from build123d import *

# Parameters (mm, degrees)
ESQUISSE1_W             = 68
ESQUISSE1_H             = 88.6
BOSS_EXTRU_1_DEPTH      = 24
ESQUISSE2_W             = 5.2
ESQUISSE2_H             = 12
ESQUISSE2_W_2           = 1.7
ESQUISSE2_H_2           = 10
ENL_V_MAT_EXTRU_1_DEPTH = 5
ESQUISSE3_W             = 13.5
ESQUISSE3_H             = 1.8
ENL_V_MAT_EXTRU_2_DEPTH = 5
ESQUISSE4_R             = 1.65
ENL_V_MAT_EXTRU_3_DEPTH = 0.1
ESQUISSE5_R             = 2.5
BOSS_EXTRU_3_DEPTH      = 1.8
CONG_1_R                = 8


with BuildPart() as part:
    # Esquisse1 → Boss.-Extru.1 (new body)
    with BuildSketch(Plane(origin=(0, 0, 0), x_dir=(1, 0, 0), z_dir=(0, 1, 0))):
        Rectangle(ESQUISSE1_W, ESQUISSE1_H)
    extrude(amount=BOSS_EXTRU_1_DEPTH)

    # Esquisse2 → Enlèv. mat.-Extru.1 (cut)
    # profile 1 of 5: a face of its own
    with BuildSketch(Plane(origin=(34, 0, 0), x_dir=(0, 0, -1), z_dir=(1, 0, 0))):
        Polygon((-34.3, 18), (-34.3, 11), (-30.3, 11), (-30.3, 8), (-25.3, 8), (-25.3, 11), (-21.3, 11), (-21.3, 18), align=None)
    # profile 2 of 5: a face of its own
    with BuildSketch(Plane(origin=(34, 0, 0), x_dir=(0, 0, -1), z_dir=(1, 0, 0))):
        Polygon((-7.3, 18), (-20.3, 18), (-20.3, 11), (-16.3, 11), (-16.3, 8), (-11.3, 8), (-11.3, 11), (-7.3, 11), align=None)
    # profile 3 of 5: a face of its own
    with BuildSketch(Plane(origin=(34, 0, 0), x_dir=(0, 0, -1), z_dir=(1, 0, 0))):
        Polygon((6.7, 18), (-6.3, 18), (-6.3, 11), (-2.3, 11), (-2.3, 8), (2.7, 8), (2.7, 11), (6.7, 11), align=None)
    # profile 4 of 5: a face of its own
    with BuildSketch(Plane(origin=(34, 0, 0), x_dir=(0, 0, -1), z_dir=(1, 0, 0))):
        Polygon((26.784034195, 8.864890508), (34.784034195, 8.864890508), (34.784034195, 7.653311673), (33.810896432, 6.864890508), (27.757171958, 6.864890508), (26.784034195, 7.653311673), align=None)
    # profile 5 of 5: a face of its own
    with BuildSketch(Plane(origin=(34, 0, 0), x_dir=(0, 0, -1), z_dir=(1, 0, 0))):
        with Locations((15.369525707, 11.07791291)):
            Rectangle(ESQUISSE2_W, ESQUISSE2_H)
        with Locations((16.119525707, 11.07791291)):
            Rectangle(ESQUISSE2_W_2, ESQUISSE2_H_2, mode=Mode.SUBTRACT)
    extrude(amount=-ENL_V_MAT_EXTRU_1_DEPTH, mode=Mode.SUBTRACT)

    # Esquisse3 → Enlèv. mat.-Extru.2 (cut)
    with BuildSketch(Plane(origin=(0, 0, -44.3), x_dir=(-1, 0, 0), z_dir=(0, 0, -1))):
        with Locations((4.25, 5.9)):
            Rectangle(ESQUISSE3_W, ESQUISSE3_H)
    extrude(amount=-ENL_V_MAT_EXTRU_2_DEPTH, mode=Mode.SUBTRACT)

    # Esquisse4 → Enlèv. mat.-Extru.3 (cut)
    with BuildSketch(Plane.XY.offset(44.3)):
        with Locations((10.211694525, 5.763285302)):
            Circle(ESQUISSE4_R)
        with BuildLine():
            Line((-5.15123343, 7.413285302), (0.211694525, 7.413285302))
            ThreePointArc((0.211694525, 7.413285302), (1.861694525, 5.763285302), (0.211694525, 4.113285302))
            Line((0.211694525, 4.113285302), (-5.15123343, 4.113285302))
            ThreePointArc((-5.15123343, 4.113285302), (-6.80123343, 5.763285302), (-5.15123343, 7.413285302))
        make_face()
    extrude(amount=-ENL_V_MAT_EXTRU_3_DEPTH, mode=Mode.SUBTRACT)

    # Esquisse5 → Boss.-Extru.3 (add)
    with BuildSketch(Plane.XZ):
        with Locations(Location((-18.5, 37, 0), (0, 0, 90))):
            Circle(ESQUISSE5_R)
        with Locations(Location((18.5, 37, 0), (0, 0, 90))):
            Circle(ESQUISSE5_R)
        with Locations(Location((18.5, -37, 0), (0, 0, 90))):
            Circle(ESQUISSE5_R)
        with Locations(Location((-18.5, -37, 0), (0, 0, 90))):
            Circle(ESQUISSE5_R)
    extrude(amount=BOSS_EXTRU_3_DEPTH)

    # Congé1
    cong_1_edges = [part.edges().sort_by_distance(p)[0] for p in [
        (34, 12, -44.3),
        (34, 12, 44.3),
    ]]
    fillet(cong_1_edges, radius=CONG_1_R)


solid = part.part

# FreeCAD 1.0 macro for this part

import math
import FreeCAD as App
import Part
import Sketcher
from FreeCAD import Vector


def edges_at(feature, points):
    """Names of the edges that pass closest to the given points."""
    edges = feature.Shape.Edges
    near = lambda p: min(range(len(edges)), key=lambda i: edges[i].distToShape(Part.Vertex(*p))[0])
    return sorted({f"Edge{near(p) + 1}" for p in points})


def add_polygon(sketch, points):
    """Adds a closed chain of lines whose ends are joined by coincident constraints."""
    first, n = sketch.GeometryCount, len(points)
    for a, b in zip(points, points[1:] + points[:1]):
        sketch.addGeometry(Part.LineSegment(App.Vector(*a, 0), App.Vector(*b, 0)), False)
    for i in range(n):
        sketch.addConstraint(Sketcher.Constraint("Coincident", first + i, 2, first + (i + 1) % n, 1))

doc = App.newDocument("Part")
params = doc.addObject("Spreadsheet::Sheet", "Params")
for row, (alias, value) in enumerate([
    ("sketch1_width", "68 mm"),
    ("sketch1_height", "88.6 mm"),
    ("pad1_length", "24 mm"),
    ("sketch2_width", "7 mm"),
    ("sketch2_width2", "3 mm"),
    ("sketch2_width3", "12 mm"),
    ("sketch2_width4", "10 mm"),
    ("sketch2_height", "4 mm"),
    ("pocket1_length", "5 mm"),
    ("sketch3_width", "13.5 mm"),
    ("sketch3_height", "1.8 mm"),
    ("pocket2_length", "5 mm"),
    ("sketch4_diameter", "3.3 mm"),
    ("pocket3_length", "0.1 mm"),
    ("sketch5_diameter", "5 mm"),
    ("pad2_length", "1.8 mm"),
    ("fillet_radius", "8 mm"),
], start=1):
    params.set(f"A{row}", alias)
    params.set(f"B{row}", "=" + value)
    params.setAlias(f"B{row}", alias)

body = doc.addObject("PartDesign::Body", "Body")

# Sketch on XZ plane
sketch1 = body.newObject("Sketcher::SketchObject", "Sketch")
sketch1.AttachmentSupport = (doc.getObject("XZ_Plane"), [""])
sketch1.MapMode = "FlatFace"
add_polygon(sketch1, [(-34, -44.3), (-34, 44.3), (34, 44.3), (34, -44.3)])  # lines 0-3
sketch1.addConstraint([
    Sketcher.Constraint("Vertical", 0),
    Sketcher.Constraint("Horizontal", 1),
    Sketcher.Constraint("Vertical", 2),
    Sketcher.Constraint("Horizontal", 3),
    Sketcher.Constraint("Symmetric", 0, 2, 2, 2, -1, 1),
    Sketcher.Constraint("DistanceX", 1, 1, 1, 2, 68.0),
    Sketcher.Constraint("DistanceY", 0, 1, 0, 2, 88.6),
])
sketch1.setExpression("Constraints[9]", "Params.sketch1_width")
sketch1.setExpression("Constraints[10]", "Params.sketch1_height")
pad1 = body.newObject("PartDesign::Pad", "Pad")
pad1.Profile = sketch1
pad1.setExpression("Length", "Params.pad1_length")
pad1.Reversed = True

# Sketch on YZ plane
sketch2 = body.newObject("Sketcher::SketchObject", "Sketch001")
sketch2.AttachmentSupport = (doc.getObject("YZ_Plane"), [""])
sketch2.MapMode = "FlatFace"
sketch2.AttachmentOffset = App.Placement(Vector(0, 0, 34), App.Rotation())
add_polygon(sketch2, [(18, 34.3), (11, 34.3), (11, 30.3), (8, 30.3), (8, 25.3), (11, 25.3), (11, 21.3), (18, 21.3)])  # lines 0-7
add_polygon(sketch2, [(18, 7.3), (18, 20.3), (11, 20.3), (11, 16.3), (8, 16.3), (8, 11.3), (11, 11.3), (11, 7.3)])  # lines 8-15
add_polygon(sketch2, [(18, -6.7), (18, 6.3), (11, 6.3), (11, 2.3), (8, 2.3), (8, -2.7), (11, -2.7), (11, -6.7)])  # lines 16-23
add_polygon(sketch2, [(8.864891, -34.784034), (8.864891, -26.784034), (7.653312, -26.784034), (6.864891, -27.757172), (6.864891, -33.810896), (7.653312, -34.784034)])  # lines 24-29
add_polygon(sketch2, [(17.077913, -12.769526), (5.077913, -12.769526), (5.077913, -17.969526), (17.077913, -17.969526)])  # lines 30-33
add_polygon(sketch2, [(6.077913, -16.969526), (6.077913, -15.269526), (16.077913, -15.269526), (16.077913, -16.969526)])  # lines 34-37
sketch2.addConstraint([
    Sketcher.Constraint("Horizontal", 0),
    Sketcher.Constraint("Vertical", 1),
    Sketcher.Constraint("Horizontal", 2),
    Sketcher.Constraint("Vertical", 3),
    Sketcher.Constraint("Horizontal", 4),
    Sketcher.Constraint("Vertical", 5),
    Sketcher.Constraint("Horizontal", 6),
    Sketcher.Constraint("Vertical", 7),
    Sketcher.Constraint("Vertical", 8),
    Sketcher.Constraint("Horizontal", 9),
    Sketcher.Constraint("Vertical", 10),
    Sketcher.Constraint("Horizontal", 11),
    Sketcher.Constraint("Vertical", 12),
    Sketcher.Constraint("Horizontal", 13),
    Sketcher.Constraint("Vertical", 14),
    Sketcher.Constraint("Horizontal", 15),
    Sketcher.Constraint("Vertical", 16),
    Sketcher.Constraint("Horizontal", 17),
    Sketcher.Constraint("Vertical", 18),
    Sketcher.Constraint("Horizontal", 19),
    Sketcher.Constraint("Vertical", 20),
    Sketcher.Constraint("Horizontal", 21),
    Sketcher.Constraint("Vertical", 22),
    Sketcher.Constraint("Horizontal", 23),
    Sketcher.Constraint("Vertical", 24),
    Sketcher.Constraint("Horizontal", 25),
    Sketcher.Constraint("Vertical", 27),
    Sketcher.Constraint("Horizontal", 29),
    Sketcher.Constraint("Horizontal", 30),
    Sketcher.Constraint("Vertical", 31),
    Sketcher.Constraint("Horizontal", 32),
    Sketcher.Constraint("Vertical", 33),
    Sketcher.Constraint("Vertical", 34),
    Sketcher.Constraint("Horizontal", 35),
    Sketcher.Constraint("Vertical", 36),
    Sketcher.Constraint("Horizontal", 37),
    Sketcher.Constraint("Vertical", 1, 2, 4, 2),
    Sketcher.Constraint("Vertical", 7, 2, 8, 2),
    Sketcher.Constraint("Vertical", 5, 2, 9, 2),
    Sketcher.Constraint("Vertical", 3, 2, 11, 2),
    Sketcher.Constraint("Vertical", 10, 2, 13, 2),
    Sketcher.Constraint("Vertical", 15, 2, 16, 2),
    Sketcher.Constraint("Vertical", 14, 2, 17, 2),
    Sketcher.Constraint("Vertical", 12, 2, 19, 2),
    Sketcher.Constraint("Vertical", 18, 2, 21, 2),
    Sketcher.Constraint("Vertical", 25, 2, 28, 2),
    Sketcher.Constraint("Equal", 1, 5),
    Sketcher.Constraint("Equal", 7, 8),
    Sketcher.Constraint("Equal", 5, 10),
    Sketcher.Constraint("Equal", 3, 12),
    Sketcher.Constraint("Equal", 8, 16),
    Sketcher.Constraint("Equal", 14, 18),
    Sketcher.Constraint("Equal", 12, 20),
    Sketcher.Constraint("Equal", 26, 28),
    Sketcher.Constraint("DistanceX", 0, 2, 0, 1, 7.0),
    Sketcher.Constraint("DistanceX", 2, 2, 2, 1, 3.0),
    Sketcher.Constraint("DistanceX", 30, 2, 30, 1, 12.0),
    Sketcher.Constraint("DistanceX", 35, 1, 35, 2, 10.0),
    Sketcher.Constraint("DistanceY", 1, 2, 1, 1, 4.0),
    Sketcher.Constraint("DistanceY", 3, 2, 3, 1, 5.0),
    Sketcher.Constraint("DistanceY", 24, 1, 24, 2, 8.0),
    Sketcher.Constraint("DistanceY", 31, 2, 31, 1, 5.2),
    Sketcher.Constraint("DistanceY", 34, 1, 34, 2, 1.7),
    Sketcher.Constraint("DistanceX", -1, 1, 0, 2, 11.0),
    Sketcher.Constraint("DistanceY", 8, 2, 6, 2, 1.0),
    Sketcher.Constraint("DistanceY", 16, 2, 15, 2, 1.0),
    Sketcher.Constraint("DistanceX", 26, 2, 24, 2, 2.0),
    Sketcher.Constraint("DistanceX", 30, 2, 34, 2, 1.0),
    Sketcher.Constraint("DistanceY", 32, 2, 36, 2, 1.0),
    Sketcher.Constraint("DistanceY", -1, 1, 0, 2, 34.3),
    Sketcher.Constraint("DistanceX", 25, 2, 25, 1, 1.211579),
    Sketcher.Constraint("DistanceX", 30, 2, 25, 2, 2.575399),
    Sketcher.Constraint("Distance", 26, 1.25244),
    Sketcher.Constraint("DistanceX", -1, 1, 24, 2, 8.864891),
    Sketcher.Constraint("DistanceY", 26, 2, -1, 1, 27.757172),
    Sketcher.Constraint("DistanceY", 25, 2, 30, 2, 14.014508),
])
sketch2.setExpression("Constraints[92]", "Params.sketch2_width")
sketch2.setExpression("Constraints[93]", "Params.sketch2_width2")
sketch2.setExpression("Constraints[94]", "Params.sketch2_width3")
sketch2.setExpression("Constraints[95]", "Params.sketch2_width4")
sketch2.setExpression("Constraints[96]", "Params.sketch2_height")
pocket1 = body.newObject("PartDesign::Pocket", "Pocket")
pocket1.Profile = sketch2
pocket1.setExpression("Length", "Params.pocket1_length")

# Sketch on XY plane
sketch3 = body.newObject("Sketcher::SketchObject", "Sketch002")
sketch3.AttachmentSupport = (doc.getObject("XY_Plane"), [""])
sketch3.MapMode = "FlatFace"
sketch3.AttachmentOffset = App.Placement(Vector(0, 0, -44.3), App.Rotation())
add_polygon(sketch3, [(2.5, 6.8), (2.5, 5), (-11, 5), (-11, 6.8)])  # lines 0-3
sketch3.addConstraint([
    Sketcher.Constraint("Vertical", 0),
    Sketcher.Constraint("Horizontal", 1),
    Sketcher.Constraint("Vertical", 2),
    Sketcher.Constraint("Horizontal", 3),
    Sketcher.Constraint("DistanceX", 1, 2, 1, 1, 13.5),
    Sketcher.Constraint("DistanceY", 0, 2, 0, 1, 1.8),
    Sketcher.Constraint("DistanceY", -1, 1, 0, 2, 5.0),
    Sketcher.Constraint("DistanceX", 1, 2, -1, 1, 11.0),
])
sketch3.setExpression("Constraints[8]", "Params.sketch3_width")
sketch3.setExpression("Constraints[9]", "Params.sketch3_height")
pocket2 = body.newObject("PartDesign::Pocket", "Pocket001")
pocket2.Profile = sketch3
pocket2.setExpression("Length", "Params.pocket2_length")
pocket2.Reversed = True

# Sketch on XY plane
sketch4 = body.newObject("Sketcher::SketchObject", "Sketch003")
sketch4.AttachmentSupport = (doc.getObject("XY_Plane"), [""])
sketch4.MapMode = "FlatFace"
sketch4.AttachmentOffset = App.Placement(Vector(0, 0, 44.3), App.Rotation())
sketch4.addGeometry([
    Part.Circle(Vector(10.211695, 5.763285, 0), Vector(0, 0, 1), 1.65),  # 0
    Part.LineSegment(Vector(0.211695, 7.413285, 0), Vector(-5.151233, 7.413285, 0)),  # 1
    Part.ArcOfCircle(Part.Circle(Vector(-5.151233, 5.763285, 0), Vector(0, 0, 1), 1.65), math.radians(90), math.radians(270)),  # 2
    Part.LineSegment(Vector(-5.151233, 4.113285, 0), Vector(0.211695, 4.113285, 0)),  # 3
    Part.ArcOfCircle(Part.Circle(Vector(0.211695, 5.763285, 0), Vector(0, 0, 1), 1.65), math.radians(-90), math.radians(90)),  # 4
], False)
sketch4.addConstraint([
    Sketcher.Constraint("Tangent", 1, 2, 2, 1),
    Sketcher.Constraint("Tangent", 2, 2, 3, 1),
    Sketcher.Constraint("Tangent", 3, 2, 4, 1),
    Sketcher.Constraint("Tangent", 4, 2, 1, 1),
    Sketcher.Constraint("Horizontal", 1),
    Sketcher.Constraint("Horizontal", 3),
    Sketcher.Constraint("Equal", 0, 2),
    Sketcher.Constraint("Horizontal", 0, 3, 2, 3),
    Sketcher.Constraint("Diameter", 0, 3.3),
    Sketcher.Constraint("DistanceX", 4, 3, 0, 3, 10.0),
    Sketcher.Constraint("DistanceX", 1, 2, 1, 1, 5.362928),
    Sketcher.Constraint("DistanceX", -1, 1, 0, 3, 10.211695),
    Sketcher.Constraint("DistanceY", -1, 1, 0, 3, 5.763285),
])
sketch4.setExpression("Constraints[8]", "Params.sketch4_diameter")
pocket3 = body.newObject("PartDesign::Pocket", "Pocket002")
pocket3.Profile = sketch4
pocket3.setExpression("Length", "Params.pocket3_length")

# Sketch on XZ plane
sketch5 = body.newObject("Sketcher::SketchObject", "Sketch004")
sketch5.AttachmentSupport = (doc.getObject("XZ_Plane"), [""])
sketch5.MapMode = "FlatFace"
sketch5.addGeometry([
    Part.Circle(Vector(-18.5, 37, 0), Vector(0, 0, 1), 2.5),
    Part.Circle(Vector(18.5, 37, 0), Vector(0, 0, 1), 2.5),
    Part.Circle(Vector(18.5, -37, 0), Vector(0, 0, 1), 2.5),
    Part.Circle(Vector(-18.5, -37, 0), Vector(0, 0, 1), 2.5),
], False)
sketch5.addConstraint([
    Sketcher.Constraint("Equal", 0, 1),
    Sketcher.Constraint("Equal", 1, 2),
    Sketcher.Constraint("Equal", 2, 3),
    Sketcher.Constraint("Symmetric", 0, 3, 2, 3, -1, 1),
    Sketcher.Constraint("Symmetric", 1, 3, 3, 3, -1, 1),
    Sketcher.Constraint("Symmetric", 0, 3, 1, 3, -2),
    Sketcher.Constraint("Diameter", 0, 5.0),
    Sketcher.Constraint("DistanceY", -1, 1, 0, 3, 37.0),
    Sketcher.Constraint("DistanceX", 0, 3, 1, 3, 37.0),
])
sketch5.setExpression("Constraints[6]", "Params.sketch5_diameter")
pad2 = body.newObject("PartDesign::Pad", "Pad001")
pad2.Profile = sketch5
pad2.setExpression("Length", "Params.pad2_length")
doc.recompute()

fillet = body.newObject("PartDesign::Fillet", "Fillet")
fillet.Base = (pad2, edges_at(pad2, [(34, 12, -44.3), (34, 12, 44.3)]))
fillet.setExpression("Radius", "Params.fillet_radius")

doc.recompute()
